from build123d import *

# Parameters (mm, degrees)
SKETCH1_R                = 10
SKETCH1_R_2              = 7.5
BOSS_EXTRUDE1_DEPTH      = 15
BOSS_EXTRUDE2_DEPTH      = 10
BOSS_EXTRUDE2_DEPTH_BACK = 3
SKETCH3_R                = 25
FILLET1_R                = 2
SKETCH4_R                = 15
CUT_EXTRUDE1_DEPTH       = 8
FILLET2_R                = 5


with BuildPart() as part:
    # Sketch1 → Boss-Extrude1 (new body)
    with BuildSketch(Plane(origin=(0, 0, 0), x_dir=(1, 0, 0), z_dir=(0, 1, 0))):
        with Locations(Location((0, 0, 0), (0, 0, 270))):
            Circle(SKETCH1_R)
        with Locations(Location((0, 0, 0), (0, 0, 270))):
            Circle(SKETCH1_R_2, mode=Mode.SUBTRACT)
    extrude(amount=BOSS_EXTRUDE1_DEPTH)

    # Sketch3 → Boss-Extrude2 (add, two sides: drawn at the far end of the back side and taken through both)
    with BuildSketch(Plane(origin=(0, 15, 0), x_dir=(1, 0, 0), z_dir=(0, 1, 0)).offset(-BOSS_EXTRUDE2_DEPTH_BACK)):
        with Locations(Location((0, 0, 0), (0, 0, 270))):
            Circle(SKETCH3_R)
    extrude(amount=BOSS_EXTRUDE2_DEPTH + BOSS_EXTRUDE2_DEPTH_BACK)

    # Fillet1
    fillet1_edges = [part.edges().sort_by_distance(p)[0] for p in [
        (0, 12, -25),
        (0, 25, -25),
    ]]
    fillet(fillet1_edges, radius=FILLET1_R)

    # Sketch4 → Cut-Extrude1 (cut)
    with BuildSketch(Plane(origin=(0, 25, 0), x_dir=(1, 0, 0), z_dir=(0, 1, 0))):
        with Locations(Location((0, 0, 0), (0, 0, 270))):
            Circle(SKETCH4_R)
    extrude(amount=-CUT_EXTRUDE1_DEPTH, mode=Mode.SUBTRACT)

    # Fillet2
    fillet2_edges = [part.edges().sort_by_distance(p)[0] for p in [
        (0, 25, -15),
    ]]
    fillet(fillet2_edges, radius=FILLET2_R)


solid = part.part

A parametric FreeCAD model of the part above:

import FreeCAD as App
import Part
import Sketcher
from FreeCAD import Vector
Q = App.Units.Quantity


def edges_at(feature, points):
    """Names of the edges that pass closest to the given points."""
    edges = feature.Shape.Edges
    near = lambda p: min(range(len(edges)), key=lambda i: edges[i].distToShape(Part.Vertex(*p))[0])
    return sorted({f"Edge{near(p) + 1}" for p in points})

doc = App.newDocument("Part")
body = doc.addObject("PartDesign::Body", "Body")

# Sketch on XZ plane
sketch1 = body.newObject("Sketcher::SketchObject", "Sketch")
sketch1.AttachmentSupport = (doc.getObject("XZ_Plane"), [""])
sketch1.MapMode = "FlatFace"
sketch1.addGeometry(Part.Circle(Vector(0, 0, 0), Vector(0, 0, 1), 10), False)
sketch1.addGeometry(Part.Circle(Vector(0, 0, 0), Vector(0, 0, 1), 8), False)
sketch1.addConstraint(Sketcher.Constraint("Coincident", 0, 3, -1, 1))
sketch1.addConstraint(Sketcher.Constraint("Coincident", 1, 3, -1, 1))
sketch1.addConstraint(Sketcher.Constraint("Diameter", 0, Q("20 mm")))
sketch1.addConstraint(Sketcher.Constraint("Diameter", 1, Q("15 mm")))
pad1 = body.newObject("PartDesign::Pad", "Pad")
pad1.Profile = sketch1
pad1.Length = 15
pad1.Reversed = True

# Sketch on XZ plane
sketch2 = body.newObject("Sketcher::SketchObject", "Sketch001")
sketch2.AttachmentSupport = (doc.getObject("XZ_Plane"), [""])
sketch2.MapMode = "FlatFace"
sketch2.AttachmentOffset = App.Placement(Vector(0, 0, -15), App.Rotation())
sketch2.addGeometry(Part.Circle(Vector(0, 0, 0), Vector(0, 0, 1), 25), False)
sketch2.addConstraint(Sketcher.Constraint("Coincident", 0, 3, -1, 1))
sketch2.addConstraint(Sketcher.Constraint("Diameter", 0, Q("50 mm")))
pad2 = body.newObject("PartDesign::Pad", "Pad001")
pad2.Profile = sketch2
pad2.Type = "TwoLengths"
pad2.Length = 10
pad2.Length2 = 3
pad2.Reversed = True
doc.recompute()

fillet = body.newObject("PartDesign::Fillet", "Fillet")
fillet.Base = (pad2, edges_at(pad2, [(0, 12, -25), (0, 25, -25)]))
fillet.Radius = 2

# Sketch on XZ plane
sketch3 = body.newObject("Sketcher::SketchObject", "Sketch002")
sketch3.AttachmentSupport = (doc.getObject("XZ_Plane"), [""])
sketch3.MapMode = "FlatFace"
sketch3.AttachmentOffset = App.Placement(Vector(0, 0, -25), App.Rotation())
sketch3.addGeometry(Part.Circle(Vector(0, 0, 0), Vector(0, 0, 1), 15), False)
sketch3.addConstraint(Sketcher.Constraint("Coincident", 0, 3, -1, 1))
sketch3.addConstraint(Sketcher.Constraint("Diameter", 0, Q("30 mm")))
pocket1 = body.newObject("PartDesign::Pocket", "Pocket")
pocket1.Profile = sketch3
pocket1.Length = 8
pocket1.Reversed = True
doc.recompute()

fillet2 = body.newObject("PartDesign::Fillet", "Fillet001")
fillet2.Base = (pocket1, edges_at(pocket1, [(0, 25, -15)]))
fillet2.Radius = 5

doc.recompute()
